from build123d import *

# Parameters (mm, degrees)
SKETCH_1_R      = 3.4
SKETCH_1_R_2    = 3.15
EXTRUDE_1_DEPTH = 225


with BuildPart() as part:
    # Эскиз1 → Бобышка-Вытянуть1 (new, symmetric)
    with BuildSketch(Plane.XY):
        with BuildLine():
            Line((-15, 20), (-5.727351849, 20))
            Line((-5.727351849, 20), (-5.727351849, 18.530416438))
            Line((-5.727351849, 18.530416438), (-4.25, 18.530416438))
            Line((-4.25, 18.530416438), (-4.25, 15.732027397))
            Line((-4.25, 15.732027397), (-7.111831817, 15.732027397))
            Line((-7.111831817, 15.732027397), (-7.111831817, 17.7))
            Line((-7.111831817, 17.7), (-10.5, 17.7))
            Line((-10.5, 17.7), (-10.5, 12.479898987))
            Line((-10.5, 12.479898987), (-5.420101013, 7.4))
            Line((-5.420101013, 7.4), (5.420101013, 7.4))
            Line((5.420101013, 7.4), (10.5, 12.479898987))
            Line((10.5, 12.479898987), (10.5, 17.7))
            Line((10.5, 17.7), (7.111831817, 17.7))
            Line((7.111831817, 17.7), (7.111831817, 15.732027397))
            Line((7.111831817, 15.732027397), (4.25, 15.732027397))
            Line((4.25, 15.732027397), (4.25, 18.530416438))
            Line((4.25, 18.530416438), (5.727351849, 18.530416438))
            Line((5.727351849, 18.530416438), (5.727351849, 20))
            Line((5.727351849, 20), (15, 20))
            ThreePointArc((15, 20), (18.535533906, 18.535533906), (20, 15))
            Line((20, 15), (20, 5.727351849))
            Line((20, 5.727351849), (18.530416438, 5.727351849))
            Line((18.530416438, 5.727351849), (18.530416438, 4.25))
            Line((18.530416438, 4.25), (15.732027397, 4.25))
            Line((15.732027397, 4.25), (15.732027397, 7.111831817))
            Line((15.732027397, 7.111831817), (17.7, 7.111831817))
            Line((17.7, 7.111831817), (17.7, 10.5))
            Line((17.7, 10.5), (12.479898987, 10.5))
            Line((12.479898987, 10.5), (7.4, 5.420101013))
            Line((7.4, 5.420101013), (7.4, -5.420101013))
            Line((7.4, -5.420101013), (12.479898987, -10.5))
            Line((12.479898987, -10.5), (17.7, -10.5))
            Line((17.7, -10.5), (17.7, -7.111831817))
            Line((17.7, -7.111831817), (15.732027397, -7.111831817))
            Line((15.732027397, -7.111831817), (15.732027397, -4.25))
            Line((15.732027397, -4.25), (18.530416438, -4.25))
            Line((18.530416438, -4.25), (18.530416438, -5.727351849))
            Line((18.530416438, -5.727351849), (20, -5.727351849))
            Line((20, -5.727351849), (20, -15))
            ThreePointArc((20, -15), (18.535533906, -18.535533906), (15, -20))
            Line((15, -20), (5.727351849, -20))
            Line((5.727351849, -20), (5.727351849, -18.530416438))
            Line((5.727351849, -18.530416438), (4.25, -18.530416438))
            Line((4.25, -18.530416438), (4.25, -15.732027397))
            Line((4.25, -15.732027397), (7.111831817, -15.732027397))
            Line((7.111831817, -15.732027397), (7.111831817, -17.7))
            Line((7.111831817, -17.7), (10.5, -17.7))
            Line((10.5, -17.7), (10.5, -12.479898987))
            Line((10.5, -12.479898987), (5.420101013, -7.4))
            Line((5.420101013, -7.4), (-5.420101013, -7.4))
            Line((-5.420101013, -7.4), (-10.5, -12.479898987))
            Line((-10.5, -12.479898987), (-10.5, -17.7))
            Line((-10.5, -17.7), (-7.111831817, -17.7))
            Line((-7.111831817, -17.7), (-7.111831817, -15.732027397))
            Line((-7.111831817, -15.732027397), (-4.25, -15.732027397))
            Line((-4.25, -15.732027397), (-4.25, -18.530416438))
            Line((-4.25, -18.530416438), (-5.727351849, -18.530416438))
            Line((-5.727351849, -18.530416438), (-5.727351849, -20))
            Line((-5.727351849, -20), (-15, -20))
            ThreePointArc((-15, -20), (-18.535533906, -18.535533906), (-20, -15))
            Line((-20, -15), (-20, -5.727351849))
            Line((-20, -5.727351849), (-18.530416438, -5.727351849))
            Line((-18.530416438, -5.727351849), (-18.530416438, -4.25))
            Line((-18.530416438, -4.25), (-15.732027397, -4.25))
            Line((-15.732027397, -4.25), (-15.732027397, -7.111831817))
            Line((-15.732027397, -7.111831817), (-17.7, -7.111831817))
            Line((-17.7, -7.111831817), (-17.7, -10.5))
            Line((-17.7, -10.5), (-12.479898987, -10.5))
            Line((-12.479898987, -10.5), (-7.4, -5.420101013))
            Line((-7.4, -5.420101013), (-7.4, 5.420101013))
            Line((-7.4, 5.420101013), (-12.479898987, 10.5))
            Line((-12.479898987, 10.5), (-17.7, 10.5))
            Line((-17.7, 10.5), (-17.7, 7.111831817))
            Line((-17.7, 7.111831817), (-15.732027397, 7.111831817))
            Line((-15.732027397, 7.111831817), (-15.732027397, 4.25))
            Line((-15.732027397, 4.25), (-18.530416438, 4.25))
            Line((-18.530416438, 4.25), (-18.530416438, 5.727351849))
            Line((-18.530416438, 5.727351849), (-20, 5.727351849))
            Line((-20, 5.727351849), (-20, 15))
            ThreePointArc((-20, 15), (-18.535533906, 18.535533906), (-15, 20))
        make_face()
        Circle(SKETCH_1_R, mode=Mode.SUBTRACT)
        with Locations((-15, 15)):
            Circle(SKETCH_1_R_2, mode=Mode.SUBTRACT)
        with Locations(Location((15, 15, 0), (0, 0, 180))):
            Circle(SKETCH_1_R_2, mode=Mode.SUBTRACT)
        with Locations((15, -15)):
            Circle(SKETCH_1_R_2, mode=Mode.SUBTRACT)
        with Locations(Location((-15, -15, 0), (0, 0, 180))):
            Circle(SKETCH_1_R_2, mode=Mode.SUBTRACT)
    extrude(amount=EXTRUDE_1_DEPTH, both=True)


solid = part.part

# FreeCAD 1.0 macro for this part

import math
import FreeCAD as App
import Part
import Sketcher

doc = App.newDocument("Part")
body = doc.addObject("PartDesign::Body", "Body")

# Sketch on XY plane
sketch1 = body.newObject("Sketcher::SketchObject", "Sketch")
sketch1.AttachmentSupport = (doc.getObject("XY_Plane"), [""])
sketch1.MapMode = "FlatFace"
sketch1.addGeometry(Part.LineSegment(App.Vector(-5.7, 20, 0), App.Vector(-15, 20, 0)), False)
sketch1.addGeometry(Part.ArcOfCircle(Part.Circle(App.Vector(-15, 15, 0), App.Vector(0, 0, 1), 5), math.radians(90), math.radians(180)), False)
sketch1.addGeometry(Part.LineSegment(App.Vector(-20, 15, 0), App.Vector(-20, 5.7, 0)), False)
sketch1.addGeometry(Part.LineSegment(App.Vector(-20, 5.7, 0), App.Vector(-18.5, 5.7, 0)), False)
sketch1.addGeometry(Part.LineSegment(App.Vector(-18.5, 5.7, 0), App.Vector(-18.5, 4.2, 0)), False)
sketch1.addGeometry(Part.LineSegment(App.Vector(-18.5, 4.2, 0), App.Vector(-15.7, 4.2, 0)), False)
sketch1.addGeometry(Part.LineSegment(App.Vector(-15.7, 4.2, 0), App.Vector(-15.7, 7.1, 0)), False)
sketch1.addGeometry(Part.LineSegment(App.Vector(-15.7, 7.1, 0), App.Vector(-17.7, 7.1, 0)), False)
sketch1.addGeometry(Part.LineSegment(App.Vector(-17.7, 7.1, 0), App.Vector(-17.7, 10.5, 0)), False)
sketch1.addGeometry(Part.LineSegment(App.Vector(-17.7, 10.5, 0), App.Vector(-12.5, 10.5, 0)), False)
sketch1.addGeometry(Part.LineSegment(App.Vector(-12.5, 10.5, 0), App.Vector(-7.4, 5.4, 0)), False)
sketch1.addGeometry(Part.LineSegment(App.Vector(-7.4, 5.4, 0), App.Vector(-7.4, -5.4, 0)), False)
sketch1.addGeometry(Part.LineSegment(App.Vector(-7.4, -5.4, 0), App.Vector(-12.5, -10.5, 0)), False)
sketch1.addGeometry(Part.LineSegment(App.Vector(-12.5, -10.5, 0), App.Vector(-17.7, -10.5, 0)), False)
sketch1.addGeometry(Part.LineSegment(App.Vector(-17.7, -10.5, 0), App.Vector(-17.7, -7.1, 0)), False)
sketch1.addGeometry(Part.LineSegment(App.Vector(-17.7, -7.1, 0), App.Vector(-15.7, -7.1, 0)), False)
sketch1.addGeometry(Part.LineSegment(App.Vector(-15.7, -7.1, 0), App.Vector(-15.7, -4.2, 0)), False)
sketch1.addGeometry(Part.LineSegment(App.Vector(-15.7, -4.2, 0), App.Vector(-18.5, -4.2, 0)), False)
sketch1.addGeometry(Part.LineSegment(App.Vector(-18.5, -4.2, 0), App.Vector(-18.5, -5.7, 0)), False)
sketch1.addGeometry(Part.LineSegment(App.Vector(-18.5, -5.7, 0), App.Vector(-20, -5.7, 0)), False)
sketch1.addGeometry(Part.LineSegment(App.Vector(-20, -5.7, 0), App.Vector(-20, -15, 0)), False)
sketch1.addGeometry(Part.ArcOfCircle(Part.Circle(App.Vector(-15, -15, 0), App.Vector(0, 0, 1), 5), math.radians(180), math.radians(270)), False)
sketch1.addGeometry(Part.LineSegment(App.Vector(-15, -20, 0), App.Vector(-5.7, -20, 0)), False)
sketch1.addGeometry(Part.LineSegment(App.Vector(-5.7, -20, 0), App.Vector(-5.7, -18.5, 0)), False)
sketch1.addGeometry(Part.LineSegment(App.Vector(-5.7, -18.5, 0), App.Vector(-4.2, -18.5, 0)), False)
sketch1.addGeometry(Part.LineSegment(App.Vector(-4.2, -18.5, 0), App.Vector(-4.2, -15.7, 0)), False)
sketch1.addGeometry(Part.LineSegment(App.Vector(-4.2, -15.7, 0), App.Vector(-7.1, -15.7, 0)), False)
sketch1.addGeometry(Part.LineSegment(App.Vector(-7.1, -15.7, 0), App.Vector(-7.1, -17.7, 0)), False)
sketch1.addGeometry(Part.LineSegment(App.Vector(-7.1, -17.7, 0), App.Vector(-10.5, -17.7, 0)), False)
sketch1.addGeometry(Part.LineSegment(App.Vector(-10.5, -17.7, 0), App.Vector(-10.5, -12.5, 0)), False)
sketch1.addGeometry(Part.LineSegment(App.Vector(-10.5, -12.5, 0), App.Vector(-5.4, -7.4, 0)), False)
sketch1.addGeometry(Part.LineSegment(App.Vector(-5.4, -7.4, 0), App.Vector(5.4, -7.4, 0)), False)
sketch1.addGeometry(Part.LineSegment(App.Vector(5.4, -7.4, 0), App.Vector(10.5, -12.5, 0)), False)
sketch1.addGeometry(Part.LineSegment(App.Vector(10.5, -12.5, 0), App.Vector(10.5, -17.7, 0)), False)
sketch1.addGeometry(Part.LineSegment(App.Vector(10.5, -17.7, 0), App.Vector(7.1, -17.7, 0)), False)
sketch1.addGeometry(Part.LineSegment(App.Vector(7.1, -17.7, 0), App.Vector(7.1, -15.7, 0)), False)
sketch1.addGeometry(Part.LineSegment(App.Vector(7.1, -15.7, 0), App.Vector(4.2, -15.7, 0)), False)
sketch1.addGeometry(Part.LineSegment(App.Vector(4.2, -15.7, 0), App.Vector(4.2, -18.5, 0)), False)
sketch1.addGeometry(Part.LineSegment(App.Vector(4.2, -18.5, 0), App.Vector(5.7, -18.5, 0)), False)
sketch1.addGeometry(Part.LineSegment(App.Vector(5.7, -18.5, 0), App.Vector(5.7, -20, 0)), False)
sketch1.addGeometry(Part.LineSegment(App.Vector(5.7, -20, 0), App.Vector(15, -20, 0)), False)
sketch1.addGeometry(Part.ArcOfCircle(Part.Circle(App.Vector(15, -15, 0), App.Vector(0, 0, 1), 5), math.radians(-90), math.radians(0)), False)
sketch1.addGeometry(Part.LineSegment(App.Vector(20, -15, 0), App.Vector(20, -5.7, 0)), False)
sketch1.addGeometry(Part.LineSegment(App.Vector(20, -5.7, 0), App.Vector(18.5, -5.7, 0)), False)
sketch1.addGeometry(Part.LineSegment(App.Vector(18.5, -5.7, 0), App.Vector(18.5, -4.2, 0)), False)
sketch1.addGeometry(Part.LineSegment(App.Vector(18.5, -4.2, 0), App.Vector(15.7, -4.2, 0)), False)
sketch1.addGeometry(Part.LineSegment(App.Vector(15.7, -4.2, 0), App.Vector(15.7, -7.1, 0)), False)
sketch1.addGeometry(Part.LineSegment(App.Vector(15.7, -7.1, 0), App.Vector(17.7, -7.1, 0)), False)
sketch1.addGeometry(Part.LineSegment(App.Vector(17.7, -7.1, 0), App.Vector(17.7, -10.5, 0)), False)
sketch1.addGeometry(Part.LineSegment(App.Vector(17.7, -10.5, 0), App.Vector(12.5, -10.5, 0)), False)
sketch1.addGeometry(Part.LineSegment(App.Vector(12.5, -10.5, 0), App.Vector(7.4, -5.4, 0)), False)
sketch1.addGeometry(Part.LineSegment(App.Vector(7.4, -5.4, 0), App.Vector(7.4, 5.4, 0)), False)
sketch1.addGeometry(Part.LineSegment(App.Vector(7.4, 5.4, 0), App.Vector(12.5, 10.5, 0)), False)
sketch1.addGeometry(Part.LineSegment(App.Vector(12.5, 10.5, 0), App.Vector(17.7, 10.5, 0)), False)
sketch1.addGeometry(Part.LineSegment(App.Vector(17.7, 10.5, 0), App.Vector(17.7, 7.1, 0)), False)
sketch1.addGeometry(Part.LineSegment(App.Vector(17.7, 7.1, 0), App.Vector(15.7, 7.1, 0)), False)
sketch1.addGeometry(Part.LineSegment(App.Vector(15.7, 7.1, 0), App.Vector(15.7, 4.2, 0)), False)
sketch1.addGeometry(Part.LineSegment(App.Vector(15.7, 4.2, 0), App.Vector(18.5, 4.2, 0)), False)
sketch1.addGeometry(Part.LineSegment(App.Vector(18.5, 4.2, 0), App.Vector(18.5, 5.7, 0)), False)
sketch1.addGeometry(Part.LineSegment(App.Vector(18.5, 5.7, 0), App.Vector(20, 5.7, 0)), False)
sketch1.addGeometry(Part.LineSegment(App.Vector(20, 5.7, 0), App.Vector(20, 15, 0)), False)
sketch1.addGeometry(Part.ArcOfCircle(Part.Circle(App.Vector(15, 15, 0), App.Vector(0, 0, 1), 5), math.radians(0), math.radians(90)), False)
sketch1.addGeometry(Part.LineSegment(App.Vector(15, 20, 0), App.Vector(5.7, 20, 0)), False)
sketch1.addGeometry(Part.LineSegment(App.Vector(5.7, 20, 0), App.Vector(5.7, 18.5, 0)), False)
sketch1.addGeometry(Part.LineSegment(App.Vector(5.7, 18.5, 0), App.Vector(4.2, 18.5, 0)), False)
sketch1.addGeometry(Part.LineSegment(App.Vector(4.2, 18.5, 0), App.Vector(4.2, 15.7, 0)), False)
sketch1.addGeometry(Part.LineSegment(App.Vector(4.2, 15.7, 0), App.Vector(7.1, 15.7, 0)), False)
sketch1.addGeometry(Part.LineSegment(App.Vector(7.1, 15.7, 0), App.Vector(7.1, 17.7, 0)), False)
sketch1.addGeometry(Part.LineSegment(App.Vector(7.1, 17.7, 0), App.Vector(10.5, 17.7, 0)), False)
sketch1.addGeometry(Part.LineSegment(App.Vector(10.5, 17.7, 0), App.Vector(10.5, 12.5, 0)), False)
sketch1.addGeometry(Part.LineSegment(App.Vector(10.5, 12.5, 0), App.Vector(5.4, 7.4, 0)), False)
sketch1.addGeometry(Part.LineSegment(App.Vector(5.4, 7.4, 0), App.Vector(-5.4, 7.4, 0)), False)
sketch1.addGeometry(Part.LineSegment(App.Vector(-5.4, 7.4, 0), App.Vector(-10.5, 12.5, 0)), False)
sketch1.addGeometry(Part.LineSegment(App.Vector(-10.5, 12.5, 0), App.Vector(-10.5, 17.7, 0)), False)
sketch1.addGeometry(Part.LineSegment(App.Vector(-10.5, 17.7, 0), App.Vector(-7.1, 17.7, 0)), False)
sketch1.addGeometry(Part.LineSegment(App.Vector(-7.1, 17.7, 0), App.Vector(-7.1, 15.7, 0)), False)
sketch1.addGeometry(Part.LineSegment(App.Vector(-7.1, 15.7, 0), App.Vector(-4.2, 15.7, 0)), False)
sketch1.addGeometry(Part.LineSegment(App.Vector(-4.2, 15.7, 0), App.Vector(-4.2, 18.5, 0)), False)
sketch1.addGeometry(Part.LineSegment(App.Vector(-4.2, 18.5, 0), App.Vector(-5.7, 18.5, 0)), False)
sketch1.addGeometry(Part.LineSegment(App.Vector(-5.7, 18.5, 0), App.Vector(-5.7, 20, 0)), False)
sketch1.addGeometry(Part.Circle(App.Vector(15, -15, 0), App.Vector(0, 0, 1), 3.1), False)
sketch1.addGeometry(Part.Circle(App.Vector(-15, -15, 0), App.Vector(0, 0, 1), 3.1), False)
sketch1.addGeometry(Part.Circle(App.Vector(15, 15, 0), App.Vector(0, 0, 1), 3.1), False)
sketch1.addGeometry(Part.Circle(App.Vector(0, 0, 0), App.Vector(0, 0, 1), 3.4), False)
sketch1.addGeometry(Part.Circle(App.Vector(-15, 15, 0), App.Vector(0, 0, 1), 3.1), False)
sketch1.addConstraint(Sketcher.Constraint("Tangent", 0, 2, 1, 1))
sketch1.addConstraint(Sketcher.Constraint("Tangent", 1, 2, 2, 1))
sketch1.addConstraint(Sketcher.Constraint("Coincident", 2, 2, 3, 1))
sketch1.addConstraint(Sketcher.Constraint("Coincident", 3, 2, 4, 1))
sketch1.addConstraint(Sketcher.Constraint("Coincident", 4, 2, 5, 1))
sketch1.addConstraint(Sketcher.Constraint("Coincident", 5, 2, 6, 1))
sketch1.addConstraint(Sketcher.Constraint("Coincident", 6, 2, 7, 1))
sketch1.addConstraint(Sketcher.Constraint("Coincident", 7, 2, 8, 1))
sketch1.addConstraint(Sketcher.Constraint("Coincident", 8, 2, 9, 1))
sketch1.addConstraint(Sketcher.Constraint("Coincident", 9, 2, 10, 1))
sketch1.addConstraint(Sketcher.Constraint("Coincident", 10, 2, 11, 1))
sketch1.addConstraint(Sketcher.Constraint("Coincident", 11, 2, 12, 1))
sketch1.addConstraint(Sketcher.Constraint("Coincident", 12, 2, 13, 1))
sketch1.addConstraint(Sketcher.Constraint("Coincident", 13, 2, 14, 1))
sketch1.addConstraint(Sketcher.Constraint("Coincident", 14, 2, 15, 1))
sketch1.addConstraint(Sketcher.Constraint("Coincident", 15, 2, 16, 1))
sketch1.addConstraint(Sketcher.Constraint("Coincident", 16, 2, 17, 1))
sketch1.addConstraint(Sketcher.Constraint("Coincident", 17, 2, 18, 1))
sketch1.addConstraint(Sketcher.Constraint("Coincident", 18, 2, 19, 1))
sketch1.addConstraint(Sketcher.Constraint("Coincident", 19, 2, 20, 1))
sketch1.addConstraint(Sketcher.Constraint("Tangent", 20, 2, 21, 1))
sketch1.addConstraint(Sketcher.Constraint("Tangent", 21, 2, 22, 1))
sketch1.addConstraint(Sketcher.Constraint("Coincident", 22, 2, 23, 1))
sketch1.addConstraint(Sketcher.Constraint("Coincident", 23, 2, 24, 1))
sketch1.addConstraint(Sketcher.Constraint("Coincident", 24, 2, 25, 1))
sketch1.addConstraint(Sketcher.Constraint("Coincident", 25, 2, 26, 1))
sketch1.addConstraint(Sketcher.Constraint("Coincident", 26, 2, 27, 1))
sketch1.addConstraint(Sketcher.Constraint("Coincident", 27, 2, 28, 1))
sketch1.addConstraint(Sketcher.Constraint("Coincident", 28, 2, 29, 1))
sketch1.addConstraint(Sketcher.Constraint("Coincident", 29, 2, 30, 1))
sketch1.addConstraint(Sketcher.Constraint("Coincident", 30, 2, 31, 1))
sketch1.addConstraint(Sketcher.Constraint("Coincident", 31, 2, 32, 1))
sketch1.addConstraint(Sketcher.Constraint("Coincident", 32, 2, 33, 1))
sketch1.addConstraint(Sketcher.Constraint("Coincident", 33, 2, 34, 1))
sketch1.addConstraint(Sketcher.Constraint("Coincident", 34, 2, 35, 1))
sketch1.addConstraint(Sketcher.Constraint("Coincident", 35, 2, 36, 1))
sketch1.addConstraint(Sketcher.Constraint("Coincident", 36, 2, 37, 1))
sketch1.addConstraint(Sketcher.Constraint("Coincident", 37, 2, 38, 1))
sketch1.addConstraint(Sketcher.Constraint("Coincident", 38, 2, 39, 1))
sketch1.addConstraint(Sketcher.Constraint("Coincident", 39, 2, 40, 1))
sketch1.addConstraint(Sketcher.Constraint("Tangent", 40, 2, 41, 1))
sketch1.addConstraint(Sketcher.Constraint("Tangent", 41, 2, 42, 1))
sketch1.addConstraint(Sketcher.Constraint("Coincident", 42, 2, 43, 1))
sketch1.addConstraint(Sketcher.Constraint("Coincident", 43, 2, 44, 1))
sketch1.addConstraint(Sketcher.Constraint("Coincident", 44, 2, 45, 1))
sketch1.addConstraint(Sketcher.Constraint("Coincident", 45, 2, 46, 1))
sketch1.addConstraint(Sketcher.Constraint("Coincident", 46, 2, 47, 1))
sketch1.addConstraint(Sketcher.Constraint("Coincident", 47, 2, 48, 1))
sketch1.addConstraint(Sketcher.Constraint("Coincident", 48, 2, 49, 1))
sketch1.addConstraint(Sketcher.Constraint("Coincident", 49, 2, 50, 1))
sketch1.addConstraint(Sketcher.Constraint("Coincident", 50, 2, 51, 1))
sketch1.addConstraint(Sketcher.Constraint("Coincident", 51, 2, 52, 1))
sketch1.addConstraint(Sketcher.Constraint("Coincident", 52, 2, 53, 1))
sketch1.addConstraint(Sketcher.Constraint("Coincident", 53, 2, 54, 1))
sketch1.addConstraint(Sketcher.Constraint("Coincident", 54, 2, 55, 1))
sketch1.addConstraint(Sketcher.Constraint("Coincident", 55, 2, 56, 1))
sketch1.addConstraint(Sketcher.Constraint("Coincident", 56, 2, 57, 1))
sketch1.addConstraint(Sketcher.Constraint("Coincident", 57, 2, 58, 1))
sketch1.addConstraint(Sketcher.Constraint("Coincident", 58, 2, 59, 1))
sketch1.addConstraint(Sketcher.Constraint("Coincident", 59, 2, 60, 1))
sketch1.addConstraint(Sketcher.Constraint("Tangent", 60, 2, 61, 1))
sketch1.addConstraint(Sketcher.Constraint("Tangent", 61, 2, 62, 1))
sketch1.addConstraint(Sketcher.Constraint("Coincident", 62, 2, 63, 1))
sketch1.addConstraint(Sketcher.Constraint("Coincident", 63, 2, 64, 1))
sketch1.addConstraint(Sketcher.Constraint("Coincident", 64, 2, 65, 1))
sketch1.addConstraint(Sketcher.Constraint("Coincident", 65, 2, 66, 1))
sketch1.addConstraint(Sketcher.Constraint("Coincident", 66, 2, 67, 1))
sketch1.addConstraint(Sketcher.Constraint("Coincident", 67, 2, 68, 1))
sketch1.addConstraint(Sketcher.Constraint("Coincident", 68, 2, 69, 1))
sketch1.addConstraint(Sketcher.Constraint("Coincident", 69, 2, 70, 1))
sketch1.addConstraint(Sketcher.Constraint("Coincident", 70, 2, 71, 1))
sketch1.addConstraint(Sketcher.Constraint("Coincident", 71, 2, 72, 1))
sketch1.addConstraint(Sketcher.Constraint("Coincident", 72, 2, 73, 1))
sketch1.addConstraint(Sketcher.Constraint("Coincident", 73, 2, 74, 1))
sketch1.addConstraint(Sketcher.Constraint("Coincident", 74, 2, 75, 1))
sketch1.addConstraint(Sketcher.Constraint("Coincident", 75, 2, 76, 1))
sketch1.addConstraint(Sketcher.Constraint("Coincident", 76, 2, 77, 1))
sketch1.addConstraint(Sketcher.Constraint("Coincident", 77, 2, 78, 1))
sketch1.addConstraint(Sketcher.Constraint("Coincident", 78, 2, 79, 1))
sketch1.addConstraint(Sketcher.Constraint("Coincident", 79, 2, 0, 1))
sketch1.addConstraint(Sketcher.Constraint("Horizontal", 0))
sketch1.addConstraint(Sketcher.Constraint("Vertical", 2))
sketch1.addConstraint(Sketcher.Constraint("Horizontal", 3))
sketch1.addConstraint(Sketcher.Constraint("Vertical", 4))
sketch1.addConstraint(Sketcher.Constraint("Horizontal", 5))
sketch1.addConstraint(Sketcher.Constraint("Vertical", 6))
sketch1.addConstraint(Sketcher.Constraint("Horizontal", 7))
sketch1.addConstraint(Sketcher.Constraint("Vertical", 8))
sketch1.addConstraint(Sketcher.Constraint("Horizontal", 9))
sketch1.addConstraint(Sketcher.Constraint("Vertical", 11))
sketch1.addConstraint(Sketcher.Constraint("Horizontal", 13))
sketch1.addConstraint(Sketcher.Constraint("Vertical", 14))
sketch1.addConstraint(Sketcher.Constraint("Horizontal", 15))
sketch1.addConstraint(Sketcher.Constraint("Vertical", 16))
sketch1.addConstraint(Sketcher.Constraint("Horizontal", 17))
sketch1.addConstraint(Sketcher.Constraint("Vertical", 18))
sketch1.addConstraint(Sketcher.Constraint("Horizontal", 19))
sketch1.addConstraint(Sketcher.Constraint("Vertical", 20))
sketch1.addConstraint(Sketcher.Constraint("Horizontal", 22))
sketch1.addConstraint(Sketcher.Constraint("Vertical", 23))
sketch1.addConstraint(Sketcher.Constraint("Horizontal", 24))
sketch1.addConstraint(Sketcher.Constraint("Vertical", 25))
sketch1.addConstraint(Sketcher.Constraint("Horizontal", 26))
sketch1.addConstraint(Sketcher.Constraint("Vertical", 27))
sketch1.addConstraint(Sketcher.Constraint("Horizontal", 28))
sketch1.addConstraint(Sketcher.Constraint("Vertical", 29))
sketch1.addConstraint(Sketcher.Constraint("Horizontal", 31))
sketch1.addConstraint(Sketcher.Constraint("Vertical", 33))
sketch1.addConstraint(Sketcher.Constraint("Horizontal", 34))
sketch1.addConstraint(Sketcher.Constraint("Vertical", 35))
sketch1.addConstraint(Sketcher.Constraint("Horizontal", 36))
sketch1.addConstraint(Sketcher.Constraint("Vertical", 37))
sketch1.addConstraint(Sketcher.Constraint("Horizontal", 38))
sketch1.addConstraint(Sketcher.Constraint("Vertical", 39))
sketch1.addConstraint(Sketcher.Constraint("Horizontal", 40))
sketch1.addConstraint(Sketcher.Constraint("Vertical", 42))
sketch1.addConstraint(Sketcher.Constraint("Horizontal", 43))
sketch1.addConstraint(Sketcher.Constraint("Vertical", 44))
sketch1.addConstraint(Sketcher.Constraint("Horizontal", 45))
sketch1.addConstraint(Sketcher.Constraint("Vertical", 46))
sketch1.addConstraint(Sketcher.Constraint("Horizontal", 47))
sketch1.addConstraint(Sketcher.Constraint("Vertical", 48))
sketch1.addConstraint(Sketcher.Constraint("Horizontal", 49))
sketch1.addConstraint(Sketcher.Constraint("Vertical", 51))
sketch1.addConstraint(Sketcher.Constraint("Horizontal", 53))
sketch1.addConstraint(Sketcher.Constraint("Vertical", 54))
sketch1.addConstraint(Sketcher.Constraint("Horizontal", 55))
sketch1.addConstraint(Sketcher.Constraint("Vertical", 56))
sketch1.addConstraint(Sketcher.Constraint("Horizontal", 57))
sketch1.addConstraint(Sketcher.Constraint("Vertical", 58))
sketch1.addConstraint(Sketcher.Constraint("Horizontal", 59))
sketch1.addConstraint(Sketcher.Constraint("Vertical", 60))
sketch1.addConstraint(Sketcher.Constraint("Horizontal", 62))
sketch1.addConstraint(Sketcher.Constraint("Vertical", 63))
sketch1.addConstraint(Sketcher.Constraint("Horizontal", 64))
sketch1.addConstraint(Sketcher.Constraint("Vertical", 65))
sketch1.addConstraint(Sketcher.Constraint("Horizontal", 66))
sketch1.addConstraint(Sketcher.Constraint("Vertical", 67))
sketch1.addConstraint(Sketcher.Constraint("Horizontal", 68))
sketch1.addConstraint(Sketcher.Constraint("Vertical", 69))
sketch1.addConstraint(Sketcher.Constraint("Horizontal", 71))
sketch1.addConstraint(Sketcher.Constraint("Vertical", 73))
sketch1.addConstraint(Sketcher.Constraint("Horizontal", 74))
sketch1.addConstraint(Sketcher.Constraint("Vertical", 75))
sketch1.addConstraint(Sketcher.Constraint("Horizontal", 76))
sketch1.addConstraint(Sketcher.Constraint("Vertical", 77))
sketch1.addConstraint(Sketcher.Constraint("Horizontal", 78))
sketch1.addConstraint(Sketcher.Constraint("Vertical", 79))
sketch1.addConstraint(Sketcher.Constraint("Coincident", 83, 3, -1, 1))
sketch1.addConstraint(Sketcher.Constraint("Coincident", 80, 3, 41, 3))
sketch1.addConstraint(Sketcher.Constraint("Coincident", 81, 3, 21, 3))
sketch1.addConstraint(Sketcher.Constraint("Coincident", 82, 3, 61, 3))
sketch1.addConstraint(Sketcher.Constraint("Coincident", 84, 3, 1, 3))
sketch1.addConstraint(Sketcher.Constraint("Equal", 1, 21))
sketch1.addConstraint(Sketcher.Constraint("Equal", 21, 41))
sketch1.addConstraint(Sketcher.Constraint("Equal", 41, 61))
sketch1.addConstraint(Sketcher.Constraint("Equal", 80, 81))
sketch1.addConstraint(Sketcher.Constraint("Equal", 81, 82))
sketch1.addConstraint(Sketcher.Constraint("Equal", 82, 84))
sketch1.addConstraint(Sketcher.Constraint("Symmetric", 1, 3, 41, 3, -1, 1))
sketch1.addConstraint(Sketcher.Constraint("Symmetric", 21, 3, 61, 3, -1, 1))
sketch1.addConstraint(Sketcher.Constraint("Symmetric", 3, 2, 43, 2, -1, 1))
sketch1.addConstraint(Sketcher.Constraint("Symmetric", 5, 2, 45, 2, -1, 1))
sketch1.addConstraint(Sketcher.Constraint("Symmetric", 7, 2, 47, 2, -1, 1))
sketch1.addConstraint(Sketcher.Constraint("Symmetric", 9, 2, 49, 2, -1, 1))
sketch1.addConstraint(Sketcher.Constraint("Symmetric", 10, 2, 50, 2, -1, 1))
sketch1.addConstraint(Sketcher.Constraint("Symmetric", 12, 2, 52, 2, -1, 1))
sketch1.addConstraint(Sketcher.Constraint("Symmetric", 14, 2, 54, 2, -1, 1))
sketch1.addConstraint(Sketcher.Constraint("Symmetric", 16, 2, 56, 2, -1, 1))
sketch1.addConstraint(Sketcher.Constraint("Symmetric", 18, 2, 58, 2, -1, 1))
sketch1.addConstraint(Sketcher.Constraint("Symmetric", 23, 2, 63, 2, -1, 1))
sketch1.addConstraint(Sketcher.Constraint("Symmetric", 25, 2, 65, 2, -1, 1))
sketch1.addConstraint(Sketcher.Constraint("Symmetric", 27, 2, 67, 2, -1, 1))
sketch1.addConstraint(Sketcher.Constraint("Symmetric", 29, 2, 69, 2, -1, 1))
sketch1.addConstraint(Sketcher.Constraint("Symmetric", 30, 2, 70, 2, -1, 1))
sketch1.addConstraint(Sketcher.Constraint("Symmetric", 32, 2, 72, 2, -1, 1))
sketch1.addConstraint(Sketcher.Constraint("Symmetric", 34, 2, 74, 2, -1, 1))
sketch1.addConstraint(Sketcher.Constraint("Symmetric", 36, 2, 76, 2, -1, 1))
sketch1.addConstraint(Sketcher.Constraint("Symmetric", 38, 2, 78, 2, -1, 1))
sketch1.addConstraint(Sketcher.Constraint("Symmetric", 21, 3, 41, 3, -2))
sketch1.addConstraint(Sketcher.Constraint("Symmetric", 29, 2, 32, 2, -2))
sketch1.addConstraint(Sketcher.Constraint("Symmetric", 27, 2, 34, 2, -2))
sketch1.addConstraint(Sketcher.Constraint("Symmetric", 25, 2, 36, 2, -2))
sketch1.addConstraint(Sketcher.Constraint("Symmetric", 23, 2, 38, 2, -2))
sketch1.addConstraint(Sketcher.Constraint("Symmetric", 18, 2, 43, 2, -2))
sketch1.addConstraint(Sketcher.Constraint("Symmetric", 16, 2, 45, 2, -2))
sketch1.addConstraint(Sketcher.Constraint("Symmetric", 14, 2, 47, 2, -2))
sketch1.addConstraint(Sketcher.Constraint("Symmetric", 12, 2, 49, 2, -2))
sketch1.addConstraint(Sketcher.Constraint("Perpendicular", 10, 12))
sketch1.addConstraint(Sketcher.Constraint("Parallel", 12, 30))
sketch1.addConstraint(Sketcher.Constraint("Perpendicular", 30, 32))
sketch1.addConstraint(Sketcher.Constraint("Perpendicular", 50, 52))
sketch1.addConstraint(Sketcher.Constraint("Perpendicular", 70, 72))
sketch1.addConstraint(Sketcher.Constraint("Horizontal", 11, 2, 50, 2))
sketch1.addConstraint(Sketcher.Constraint("Equal", 62, 2))
sketch1.addConstraint(Sketcher.Constraint("Equal", 78, 4))
sketch1.addConstraint(Sketcher.Constraint("Equal", 76, 6))
sketch1.addConstraint(Sketcher.Constraint("Equal", 74, 8))
sketch1.addConstraint(Sketcher.Constraint("Equal", 71, 11))
sketch1.addConstraint(Sketcher.Constraint("Equal", 59, 23))
sketch1.addConstraint(Sketcher.Constraint("Equal", 57, 25))
sketch1.addConstraint(Sketcher.Constraint("Equal", 55, 27))
sketch1.addConstraint(Sketcher.Constraint("Equal", 53, 29))
sketch1.addConstraint(Sketcher.Constraint("Equal", 12, 30))
sketch1.addConstraint(Sketcher.Constraint("Radius", 1, 5.0))
sketch1.addConstraint(Sketcher.Constraint("Diameter", 80, 6.3))
sketch1.addConstraint(Sketcher.Constraint("Diameter", 83, 6.8))
sketch1.addConstraint(Sketcher.Constraint("DistanceX", 1, 3, -1, 1, 15.0))
sketch1.addConstraint(Sketcher.Constraint("DistanceX", 7, 2, -1, 1, 17.7))
sketch1.addConstraint(Sketcher.Constraint("DistanceY", -1, 1, 8, 2, 10.5))
sketch1.addConstraint(Sketcher.Constraint("DistanceX", 10, 2, -1, 1, 7.4))
sketch1.addConstraint(Sketcher.Constraint("DistanceY", -1, 1, 4, 2, 4.25))
sketch1.addConstraint(Sketcher.Constraint("DistanceX", 9, 1, 9, 2, 5.220101))
sketch1.addConstraint(Sketcher.Constraint("DistanceX", 0, 2, 0, 1, 9.272648))
sketch1.addConstraint(Sketcher.Constraint("DistanceX", 5, 1, 5, 2, 2.798389))
sketch1.addConstraint(Sketcher.Constraint("DistanceX", 26, 2, 26, 1, 2.861832))
sketch1.addConstraint(Sketcher.Constraint("DistanceX", 3, 1, 3, 2, 1.469584))
pad1 = body.newObject("PartDesign::Pad", "Pad")
pad1.Profile = sketch1
pad1.Length = 450
pad1.Midplane = True

doc.recompute()
